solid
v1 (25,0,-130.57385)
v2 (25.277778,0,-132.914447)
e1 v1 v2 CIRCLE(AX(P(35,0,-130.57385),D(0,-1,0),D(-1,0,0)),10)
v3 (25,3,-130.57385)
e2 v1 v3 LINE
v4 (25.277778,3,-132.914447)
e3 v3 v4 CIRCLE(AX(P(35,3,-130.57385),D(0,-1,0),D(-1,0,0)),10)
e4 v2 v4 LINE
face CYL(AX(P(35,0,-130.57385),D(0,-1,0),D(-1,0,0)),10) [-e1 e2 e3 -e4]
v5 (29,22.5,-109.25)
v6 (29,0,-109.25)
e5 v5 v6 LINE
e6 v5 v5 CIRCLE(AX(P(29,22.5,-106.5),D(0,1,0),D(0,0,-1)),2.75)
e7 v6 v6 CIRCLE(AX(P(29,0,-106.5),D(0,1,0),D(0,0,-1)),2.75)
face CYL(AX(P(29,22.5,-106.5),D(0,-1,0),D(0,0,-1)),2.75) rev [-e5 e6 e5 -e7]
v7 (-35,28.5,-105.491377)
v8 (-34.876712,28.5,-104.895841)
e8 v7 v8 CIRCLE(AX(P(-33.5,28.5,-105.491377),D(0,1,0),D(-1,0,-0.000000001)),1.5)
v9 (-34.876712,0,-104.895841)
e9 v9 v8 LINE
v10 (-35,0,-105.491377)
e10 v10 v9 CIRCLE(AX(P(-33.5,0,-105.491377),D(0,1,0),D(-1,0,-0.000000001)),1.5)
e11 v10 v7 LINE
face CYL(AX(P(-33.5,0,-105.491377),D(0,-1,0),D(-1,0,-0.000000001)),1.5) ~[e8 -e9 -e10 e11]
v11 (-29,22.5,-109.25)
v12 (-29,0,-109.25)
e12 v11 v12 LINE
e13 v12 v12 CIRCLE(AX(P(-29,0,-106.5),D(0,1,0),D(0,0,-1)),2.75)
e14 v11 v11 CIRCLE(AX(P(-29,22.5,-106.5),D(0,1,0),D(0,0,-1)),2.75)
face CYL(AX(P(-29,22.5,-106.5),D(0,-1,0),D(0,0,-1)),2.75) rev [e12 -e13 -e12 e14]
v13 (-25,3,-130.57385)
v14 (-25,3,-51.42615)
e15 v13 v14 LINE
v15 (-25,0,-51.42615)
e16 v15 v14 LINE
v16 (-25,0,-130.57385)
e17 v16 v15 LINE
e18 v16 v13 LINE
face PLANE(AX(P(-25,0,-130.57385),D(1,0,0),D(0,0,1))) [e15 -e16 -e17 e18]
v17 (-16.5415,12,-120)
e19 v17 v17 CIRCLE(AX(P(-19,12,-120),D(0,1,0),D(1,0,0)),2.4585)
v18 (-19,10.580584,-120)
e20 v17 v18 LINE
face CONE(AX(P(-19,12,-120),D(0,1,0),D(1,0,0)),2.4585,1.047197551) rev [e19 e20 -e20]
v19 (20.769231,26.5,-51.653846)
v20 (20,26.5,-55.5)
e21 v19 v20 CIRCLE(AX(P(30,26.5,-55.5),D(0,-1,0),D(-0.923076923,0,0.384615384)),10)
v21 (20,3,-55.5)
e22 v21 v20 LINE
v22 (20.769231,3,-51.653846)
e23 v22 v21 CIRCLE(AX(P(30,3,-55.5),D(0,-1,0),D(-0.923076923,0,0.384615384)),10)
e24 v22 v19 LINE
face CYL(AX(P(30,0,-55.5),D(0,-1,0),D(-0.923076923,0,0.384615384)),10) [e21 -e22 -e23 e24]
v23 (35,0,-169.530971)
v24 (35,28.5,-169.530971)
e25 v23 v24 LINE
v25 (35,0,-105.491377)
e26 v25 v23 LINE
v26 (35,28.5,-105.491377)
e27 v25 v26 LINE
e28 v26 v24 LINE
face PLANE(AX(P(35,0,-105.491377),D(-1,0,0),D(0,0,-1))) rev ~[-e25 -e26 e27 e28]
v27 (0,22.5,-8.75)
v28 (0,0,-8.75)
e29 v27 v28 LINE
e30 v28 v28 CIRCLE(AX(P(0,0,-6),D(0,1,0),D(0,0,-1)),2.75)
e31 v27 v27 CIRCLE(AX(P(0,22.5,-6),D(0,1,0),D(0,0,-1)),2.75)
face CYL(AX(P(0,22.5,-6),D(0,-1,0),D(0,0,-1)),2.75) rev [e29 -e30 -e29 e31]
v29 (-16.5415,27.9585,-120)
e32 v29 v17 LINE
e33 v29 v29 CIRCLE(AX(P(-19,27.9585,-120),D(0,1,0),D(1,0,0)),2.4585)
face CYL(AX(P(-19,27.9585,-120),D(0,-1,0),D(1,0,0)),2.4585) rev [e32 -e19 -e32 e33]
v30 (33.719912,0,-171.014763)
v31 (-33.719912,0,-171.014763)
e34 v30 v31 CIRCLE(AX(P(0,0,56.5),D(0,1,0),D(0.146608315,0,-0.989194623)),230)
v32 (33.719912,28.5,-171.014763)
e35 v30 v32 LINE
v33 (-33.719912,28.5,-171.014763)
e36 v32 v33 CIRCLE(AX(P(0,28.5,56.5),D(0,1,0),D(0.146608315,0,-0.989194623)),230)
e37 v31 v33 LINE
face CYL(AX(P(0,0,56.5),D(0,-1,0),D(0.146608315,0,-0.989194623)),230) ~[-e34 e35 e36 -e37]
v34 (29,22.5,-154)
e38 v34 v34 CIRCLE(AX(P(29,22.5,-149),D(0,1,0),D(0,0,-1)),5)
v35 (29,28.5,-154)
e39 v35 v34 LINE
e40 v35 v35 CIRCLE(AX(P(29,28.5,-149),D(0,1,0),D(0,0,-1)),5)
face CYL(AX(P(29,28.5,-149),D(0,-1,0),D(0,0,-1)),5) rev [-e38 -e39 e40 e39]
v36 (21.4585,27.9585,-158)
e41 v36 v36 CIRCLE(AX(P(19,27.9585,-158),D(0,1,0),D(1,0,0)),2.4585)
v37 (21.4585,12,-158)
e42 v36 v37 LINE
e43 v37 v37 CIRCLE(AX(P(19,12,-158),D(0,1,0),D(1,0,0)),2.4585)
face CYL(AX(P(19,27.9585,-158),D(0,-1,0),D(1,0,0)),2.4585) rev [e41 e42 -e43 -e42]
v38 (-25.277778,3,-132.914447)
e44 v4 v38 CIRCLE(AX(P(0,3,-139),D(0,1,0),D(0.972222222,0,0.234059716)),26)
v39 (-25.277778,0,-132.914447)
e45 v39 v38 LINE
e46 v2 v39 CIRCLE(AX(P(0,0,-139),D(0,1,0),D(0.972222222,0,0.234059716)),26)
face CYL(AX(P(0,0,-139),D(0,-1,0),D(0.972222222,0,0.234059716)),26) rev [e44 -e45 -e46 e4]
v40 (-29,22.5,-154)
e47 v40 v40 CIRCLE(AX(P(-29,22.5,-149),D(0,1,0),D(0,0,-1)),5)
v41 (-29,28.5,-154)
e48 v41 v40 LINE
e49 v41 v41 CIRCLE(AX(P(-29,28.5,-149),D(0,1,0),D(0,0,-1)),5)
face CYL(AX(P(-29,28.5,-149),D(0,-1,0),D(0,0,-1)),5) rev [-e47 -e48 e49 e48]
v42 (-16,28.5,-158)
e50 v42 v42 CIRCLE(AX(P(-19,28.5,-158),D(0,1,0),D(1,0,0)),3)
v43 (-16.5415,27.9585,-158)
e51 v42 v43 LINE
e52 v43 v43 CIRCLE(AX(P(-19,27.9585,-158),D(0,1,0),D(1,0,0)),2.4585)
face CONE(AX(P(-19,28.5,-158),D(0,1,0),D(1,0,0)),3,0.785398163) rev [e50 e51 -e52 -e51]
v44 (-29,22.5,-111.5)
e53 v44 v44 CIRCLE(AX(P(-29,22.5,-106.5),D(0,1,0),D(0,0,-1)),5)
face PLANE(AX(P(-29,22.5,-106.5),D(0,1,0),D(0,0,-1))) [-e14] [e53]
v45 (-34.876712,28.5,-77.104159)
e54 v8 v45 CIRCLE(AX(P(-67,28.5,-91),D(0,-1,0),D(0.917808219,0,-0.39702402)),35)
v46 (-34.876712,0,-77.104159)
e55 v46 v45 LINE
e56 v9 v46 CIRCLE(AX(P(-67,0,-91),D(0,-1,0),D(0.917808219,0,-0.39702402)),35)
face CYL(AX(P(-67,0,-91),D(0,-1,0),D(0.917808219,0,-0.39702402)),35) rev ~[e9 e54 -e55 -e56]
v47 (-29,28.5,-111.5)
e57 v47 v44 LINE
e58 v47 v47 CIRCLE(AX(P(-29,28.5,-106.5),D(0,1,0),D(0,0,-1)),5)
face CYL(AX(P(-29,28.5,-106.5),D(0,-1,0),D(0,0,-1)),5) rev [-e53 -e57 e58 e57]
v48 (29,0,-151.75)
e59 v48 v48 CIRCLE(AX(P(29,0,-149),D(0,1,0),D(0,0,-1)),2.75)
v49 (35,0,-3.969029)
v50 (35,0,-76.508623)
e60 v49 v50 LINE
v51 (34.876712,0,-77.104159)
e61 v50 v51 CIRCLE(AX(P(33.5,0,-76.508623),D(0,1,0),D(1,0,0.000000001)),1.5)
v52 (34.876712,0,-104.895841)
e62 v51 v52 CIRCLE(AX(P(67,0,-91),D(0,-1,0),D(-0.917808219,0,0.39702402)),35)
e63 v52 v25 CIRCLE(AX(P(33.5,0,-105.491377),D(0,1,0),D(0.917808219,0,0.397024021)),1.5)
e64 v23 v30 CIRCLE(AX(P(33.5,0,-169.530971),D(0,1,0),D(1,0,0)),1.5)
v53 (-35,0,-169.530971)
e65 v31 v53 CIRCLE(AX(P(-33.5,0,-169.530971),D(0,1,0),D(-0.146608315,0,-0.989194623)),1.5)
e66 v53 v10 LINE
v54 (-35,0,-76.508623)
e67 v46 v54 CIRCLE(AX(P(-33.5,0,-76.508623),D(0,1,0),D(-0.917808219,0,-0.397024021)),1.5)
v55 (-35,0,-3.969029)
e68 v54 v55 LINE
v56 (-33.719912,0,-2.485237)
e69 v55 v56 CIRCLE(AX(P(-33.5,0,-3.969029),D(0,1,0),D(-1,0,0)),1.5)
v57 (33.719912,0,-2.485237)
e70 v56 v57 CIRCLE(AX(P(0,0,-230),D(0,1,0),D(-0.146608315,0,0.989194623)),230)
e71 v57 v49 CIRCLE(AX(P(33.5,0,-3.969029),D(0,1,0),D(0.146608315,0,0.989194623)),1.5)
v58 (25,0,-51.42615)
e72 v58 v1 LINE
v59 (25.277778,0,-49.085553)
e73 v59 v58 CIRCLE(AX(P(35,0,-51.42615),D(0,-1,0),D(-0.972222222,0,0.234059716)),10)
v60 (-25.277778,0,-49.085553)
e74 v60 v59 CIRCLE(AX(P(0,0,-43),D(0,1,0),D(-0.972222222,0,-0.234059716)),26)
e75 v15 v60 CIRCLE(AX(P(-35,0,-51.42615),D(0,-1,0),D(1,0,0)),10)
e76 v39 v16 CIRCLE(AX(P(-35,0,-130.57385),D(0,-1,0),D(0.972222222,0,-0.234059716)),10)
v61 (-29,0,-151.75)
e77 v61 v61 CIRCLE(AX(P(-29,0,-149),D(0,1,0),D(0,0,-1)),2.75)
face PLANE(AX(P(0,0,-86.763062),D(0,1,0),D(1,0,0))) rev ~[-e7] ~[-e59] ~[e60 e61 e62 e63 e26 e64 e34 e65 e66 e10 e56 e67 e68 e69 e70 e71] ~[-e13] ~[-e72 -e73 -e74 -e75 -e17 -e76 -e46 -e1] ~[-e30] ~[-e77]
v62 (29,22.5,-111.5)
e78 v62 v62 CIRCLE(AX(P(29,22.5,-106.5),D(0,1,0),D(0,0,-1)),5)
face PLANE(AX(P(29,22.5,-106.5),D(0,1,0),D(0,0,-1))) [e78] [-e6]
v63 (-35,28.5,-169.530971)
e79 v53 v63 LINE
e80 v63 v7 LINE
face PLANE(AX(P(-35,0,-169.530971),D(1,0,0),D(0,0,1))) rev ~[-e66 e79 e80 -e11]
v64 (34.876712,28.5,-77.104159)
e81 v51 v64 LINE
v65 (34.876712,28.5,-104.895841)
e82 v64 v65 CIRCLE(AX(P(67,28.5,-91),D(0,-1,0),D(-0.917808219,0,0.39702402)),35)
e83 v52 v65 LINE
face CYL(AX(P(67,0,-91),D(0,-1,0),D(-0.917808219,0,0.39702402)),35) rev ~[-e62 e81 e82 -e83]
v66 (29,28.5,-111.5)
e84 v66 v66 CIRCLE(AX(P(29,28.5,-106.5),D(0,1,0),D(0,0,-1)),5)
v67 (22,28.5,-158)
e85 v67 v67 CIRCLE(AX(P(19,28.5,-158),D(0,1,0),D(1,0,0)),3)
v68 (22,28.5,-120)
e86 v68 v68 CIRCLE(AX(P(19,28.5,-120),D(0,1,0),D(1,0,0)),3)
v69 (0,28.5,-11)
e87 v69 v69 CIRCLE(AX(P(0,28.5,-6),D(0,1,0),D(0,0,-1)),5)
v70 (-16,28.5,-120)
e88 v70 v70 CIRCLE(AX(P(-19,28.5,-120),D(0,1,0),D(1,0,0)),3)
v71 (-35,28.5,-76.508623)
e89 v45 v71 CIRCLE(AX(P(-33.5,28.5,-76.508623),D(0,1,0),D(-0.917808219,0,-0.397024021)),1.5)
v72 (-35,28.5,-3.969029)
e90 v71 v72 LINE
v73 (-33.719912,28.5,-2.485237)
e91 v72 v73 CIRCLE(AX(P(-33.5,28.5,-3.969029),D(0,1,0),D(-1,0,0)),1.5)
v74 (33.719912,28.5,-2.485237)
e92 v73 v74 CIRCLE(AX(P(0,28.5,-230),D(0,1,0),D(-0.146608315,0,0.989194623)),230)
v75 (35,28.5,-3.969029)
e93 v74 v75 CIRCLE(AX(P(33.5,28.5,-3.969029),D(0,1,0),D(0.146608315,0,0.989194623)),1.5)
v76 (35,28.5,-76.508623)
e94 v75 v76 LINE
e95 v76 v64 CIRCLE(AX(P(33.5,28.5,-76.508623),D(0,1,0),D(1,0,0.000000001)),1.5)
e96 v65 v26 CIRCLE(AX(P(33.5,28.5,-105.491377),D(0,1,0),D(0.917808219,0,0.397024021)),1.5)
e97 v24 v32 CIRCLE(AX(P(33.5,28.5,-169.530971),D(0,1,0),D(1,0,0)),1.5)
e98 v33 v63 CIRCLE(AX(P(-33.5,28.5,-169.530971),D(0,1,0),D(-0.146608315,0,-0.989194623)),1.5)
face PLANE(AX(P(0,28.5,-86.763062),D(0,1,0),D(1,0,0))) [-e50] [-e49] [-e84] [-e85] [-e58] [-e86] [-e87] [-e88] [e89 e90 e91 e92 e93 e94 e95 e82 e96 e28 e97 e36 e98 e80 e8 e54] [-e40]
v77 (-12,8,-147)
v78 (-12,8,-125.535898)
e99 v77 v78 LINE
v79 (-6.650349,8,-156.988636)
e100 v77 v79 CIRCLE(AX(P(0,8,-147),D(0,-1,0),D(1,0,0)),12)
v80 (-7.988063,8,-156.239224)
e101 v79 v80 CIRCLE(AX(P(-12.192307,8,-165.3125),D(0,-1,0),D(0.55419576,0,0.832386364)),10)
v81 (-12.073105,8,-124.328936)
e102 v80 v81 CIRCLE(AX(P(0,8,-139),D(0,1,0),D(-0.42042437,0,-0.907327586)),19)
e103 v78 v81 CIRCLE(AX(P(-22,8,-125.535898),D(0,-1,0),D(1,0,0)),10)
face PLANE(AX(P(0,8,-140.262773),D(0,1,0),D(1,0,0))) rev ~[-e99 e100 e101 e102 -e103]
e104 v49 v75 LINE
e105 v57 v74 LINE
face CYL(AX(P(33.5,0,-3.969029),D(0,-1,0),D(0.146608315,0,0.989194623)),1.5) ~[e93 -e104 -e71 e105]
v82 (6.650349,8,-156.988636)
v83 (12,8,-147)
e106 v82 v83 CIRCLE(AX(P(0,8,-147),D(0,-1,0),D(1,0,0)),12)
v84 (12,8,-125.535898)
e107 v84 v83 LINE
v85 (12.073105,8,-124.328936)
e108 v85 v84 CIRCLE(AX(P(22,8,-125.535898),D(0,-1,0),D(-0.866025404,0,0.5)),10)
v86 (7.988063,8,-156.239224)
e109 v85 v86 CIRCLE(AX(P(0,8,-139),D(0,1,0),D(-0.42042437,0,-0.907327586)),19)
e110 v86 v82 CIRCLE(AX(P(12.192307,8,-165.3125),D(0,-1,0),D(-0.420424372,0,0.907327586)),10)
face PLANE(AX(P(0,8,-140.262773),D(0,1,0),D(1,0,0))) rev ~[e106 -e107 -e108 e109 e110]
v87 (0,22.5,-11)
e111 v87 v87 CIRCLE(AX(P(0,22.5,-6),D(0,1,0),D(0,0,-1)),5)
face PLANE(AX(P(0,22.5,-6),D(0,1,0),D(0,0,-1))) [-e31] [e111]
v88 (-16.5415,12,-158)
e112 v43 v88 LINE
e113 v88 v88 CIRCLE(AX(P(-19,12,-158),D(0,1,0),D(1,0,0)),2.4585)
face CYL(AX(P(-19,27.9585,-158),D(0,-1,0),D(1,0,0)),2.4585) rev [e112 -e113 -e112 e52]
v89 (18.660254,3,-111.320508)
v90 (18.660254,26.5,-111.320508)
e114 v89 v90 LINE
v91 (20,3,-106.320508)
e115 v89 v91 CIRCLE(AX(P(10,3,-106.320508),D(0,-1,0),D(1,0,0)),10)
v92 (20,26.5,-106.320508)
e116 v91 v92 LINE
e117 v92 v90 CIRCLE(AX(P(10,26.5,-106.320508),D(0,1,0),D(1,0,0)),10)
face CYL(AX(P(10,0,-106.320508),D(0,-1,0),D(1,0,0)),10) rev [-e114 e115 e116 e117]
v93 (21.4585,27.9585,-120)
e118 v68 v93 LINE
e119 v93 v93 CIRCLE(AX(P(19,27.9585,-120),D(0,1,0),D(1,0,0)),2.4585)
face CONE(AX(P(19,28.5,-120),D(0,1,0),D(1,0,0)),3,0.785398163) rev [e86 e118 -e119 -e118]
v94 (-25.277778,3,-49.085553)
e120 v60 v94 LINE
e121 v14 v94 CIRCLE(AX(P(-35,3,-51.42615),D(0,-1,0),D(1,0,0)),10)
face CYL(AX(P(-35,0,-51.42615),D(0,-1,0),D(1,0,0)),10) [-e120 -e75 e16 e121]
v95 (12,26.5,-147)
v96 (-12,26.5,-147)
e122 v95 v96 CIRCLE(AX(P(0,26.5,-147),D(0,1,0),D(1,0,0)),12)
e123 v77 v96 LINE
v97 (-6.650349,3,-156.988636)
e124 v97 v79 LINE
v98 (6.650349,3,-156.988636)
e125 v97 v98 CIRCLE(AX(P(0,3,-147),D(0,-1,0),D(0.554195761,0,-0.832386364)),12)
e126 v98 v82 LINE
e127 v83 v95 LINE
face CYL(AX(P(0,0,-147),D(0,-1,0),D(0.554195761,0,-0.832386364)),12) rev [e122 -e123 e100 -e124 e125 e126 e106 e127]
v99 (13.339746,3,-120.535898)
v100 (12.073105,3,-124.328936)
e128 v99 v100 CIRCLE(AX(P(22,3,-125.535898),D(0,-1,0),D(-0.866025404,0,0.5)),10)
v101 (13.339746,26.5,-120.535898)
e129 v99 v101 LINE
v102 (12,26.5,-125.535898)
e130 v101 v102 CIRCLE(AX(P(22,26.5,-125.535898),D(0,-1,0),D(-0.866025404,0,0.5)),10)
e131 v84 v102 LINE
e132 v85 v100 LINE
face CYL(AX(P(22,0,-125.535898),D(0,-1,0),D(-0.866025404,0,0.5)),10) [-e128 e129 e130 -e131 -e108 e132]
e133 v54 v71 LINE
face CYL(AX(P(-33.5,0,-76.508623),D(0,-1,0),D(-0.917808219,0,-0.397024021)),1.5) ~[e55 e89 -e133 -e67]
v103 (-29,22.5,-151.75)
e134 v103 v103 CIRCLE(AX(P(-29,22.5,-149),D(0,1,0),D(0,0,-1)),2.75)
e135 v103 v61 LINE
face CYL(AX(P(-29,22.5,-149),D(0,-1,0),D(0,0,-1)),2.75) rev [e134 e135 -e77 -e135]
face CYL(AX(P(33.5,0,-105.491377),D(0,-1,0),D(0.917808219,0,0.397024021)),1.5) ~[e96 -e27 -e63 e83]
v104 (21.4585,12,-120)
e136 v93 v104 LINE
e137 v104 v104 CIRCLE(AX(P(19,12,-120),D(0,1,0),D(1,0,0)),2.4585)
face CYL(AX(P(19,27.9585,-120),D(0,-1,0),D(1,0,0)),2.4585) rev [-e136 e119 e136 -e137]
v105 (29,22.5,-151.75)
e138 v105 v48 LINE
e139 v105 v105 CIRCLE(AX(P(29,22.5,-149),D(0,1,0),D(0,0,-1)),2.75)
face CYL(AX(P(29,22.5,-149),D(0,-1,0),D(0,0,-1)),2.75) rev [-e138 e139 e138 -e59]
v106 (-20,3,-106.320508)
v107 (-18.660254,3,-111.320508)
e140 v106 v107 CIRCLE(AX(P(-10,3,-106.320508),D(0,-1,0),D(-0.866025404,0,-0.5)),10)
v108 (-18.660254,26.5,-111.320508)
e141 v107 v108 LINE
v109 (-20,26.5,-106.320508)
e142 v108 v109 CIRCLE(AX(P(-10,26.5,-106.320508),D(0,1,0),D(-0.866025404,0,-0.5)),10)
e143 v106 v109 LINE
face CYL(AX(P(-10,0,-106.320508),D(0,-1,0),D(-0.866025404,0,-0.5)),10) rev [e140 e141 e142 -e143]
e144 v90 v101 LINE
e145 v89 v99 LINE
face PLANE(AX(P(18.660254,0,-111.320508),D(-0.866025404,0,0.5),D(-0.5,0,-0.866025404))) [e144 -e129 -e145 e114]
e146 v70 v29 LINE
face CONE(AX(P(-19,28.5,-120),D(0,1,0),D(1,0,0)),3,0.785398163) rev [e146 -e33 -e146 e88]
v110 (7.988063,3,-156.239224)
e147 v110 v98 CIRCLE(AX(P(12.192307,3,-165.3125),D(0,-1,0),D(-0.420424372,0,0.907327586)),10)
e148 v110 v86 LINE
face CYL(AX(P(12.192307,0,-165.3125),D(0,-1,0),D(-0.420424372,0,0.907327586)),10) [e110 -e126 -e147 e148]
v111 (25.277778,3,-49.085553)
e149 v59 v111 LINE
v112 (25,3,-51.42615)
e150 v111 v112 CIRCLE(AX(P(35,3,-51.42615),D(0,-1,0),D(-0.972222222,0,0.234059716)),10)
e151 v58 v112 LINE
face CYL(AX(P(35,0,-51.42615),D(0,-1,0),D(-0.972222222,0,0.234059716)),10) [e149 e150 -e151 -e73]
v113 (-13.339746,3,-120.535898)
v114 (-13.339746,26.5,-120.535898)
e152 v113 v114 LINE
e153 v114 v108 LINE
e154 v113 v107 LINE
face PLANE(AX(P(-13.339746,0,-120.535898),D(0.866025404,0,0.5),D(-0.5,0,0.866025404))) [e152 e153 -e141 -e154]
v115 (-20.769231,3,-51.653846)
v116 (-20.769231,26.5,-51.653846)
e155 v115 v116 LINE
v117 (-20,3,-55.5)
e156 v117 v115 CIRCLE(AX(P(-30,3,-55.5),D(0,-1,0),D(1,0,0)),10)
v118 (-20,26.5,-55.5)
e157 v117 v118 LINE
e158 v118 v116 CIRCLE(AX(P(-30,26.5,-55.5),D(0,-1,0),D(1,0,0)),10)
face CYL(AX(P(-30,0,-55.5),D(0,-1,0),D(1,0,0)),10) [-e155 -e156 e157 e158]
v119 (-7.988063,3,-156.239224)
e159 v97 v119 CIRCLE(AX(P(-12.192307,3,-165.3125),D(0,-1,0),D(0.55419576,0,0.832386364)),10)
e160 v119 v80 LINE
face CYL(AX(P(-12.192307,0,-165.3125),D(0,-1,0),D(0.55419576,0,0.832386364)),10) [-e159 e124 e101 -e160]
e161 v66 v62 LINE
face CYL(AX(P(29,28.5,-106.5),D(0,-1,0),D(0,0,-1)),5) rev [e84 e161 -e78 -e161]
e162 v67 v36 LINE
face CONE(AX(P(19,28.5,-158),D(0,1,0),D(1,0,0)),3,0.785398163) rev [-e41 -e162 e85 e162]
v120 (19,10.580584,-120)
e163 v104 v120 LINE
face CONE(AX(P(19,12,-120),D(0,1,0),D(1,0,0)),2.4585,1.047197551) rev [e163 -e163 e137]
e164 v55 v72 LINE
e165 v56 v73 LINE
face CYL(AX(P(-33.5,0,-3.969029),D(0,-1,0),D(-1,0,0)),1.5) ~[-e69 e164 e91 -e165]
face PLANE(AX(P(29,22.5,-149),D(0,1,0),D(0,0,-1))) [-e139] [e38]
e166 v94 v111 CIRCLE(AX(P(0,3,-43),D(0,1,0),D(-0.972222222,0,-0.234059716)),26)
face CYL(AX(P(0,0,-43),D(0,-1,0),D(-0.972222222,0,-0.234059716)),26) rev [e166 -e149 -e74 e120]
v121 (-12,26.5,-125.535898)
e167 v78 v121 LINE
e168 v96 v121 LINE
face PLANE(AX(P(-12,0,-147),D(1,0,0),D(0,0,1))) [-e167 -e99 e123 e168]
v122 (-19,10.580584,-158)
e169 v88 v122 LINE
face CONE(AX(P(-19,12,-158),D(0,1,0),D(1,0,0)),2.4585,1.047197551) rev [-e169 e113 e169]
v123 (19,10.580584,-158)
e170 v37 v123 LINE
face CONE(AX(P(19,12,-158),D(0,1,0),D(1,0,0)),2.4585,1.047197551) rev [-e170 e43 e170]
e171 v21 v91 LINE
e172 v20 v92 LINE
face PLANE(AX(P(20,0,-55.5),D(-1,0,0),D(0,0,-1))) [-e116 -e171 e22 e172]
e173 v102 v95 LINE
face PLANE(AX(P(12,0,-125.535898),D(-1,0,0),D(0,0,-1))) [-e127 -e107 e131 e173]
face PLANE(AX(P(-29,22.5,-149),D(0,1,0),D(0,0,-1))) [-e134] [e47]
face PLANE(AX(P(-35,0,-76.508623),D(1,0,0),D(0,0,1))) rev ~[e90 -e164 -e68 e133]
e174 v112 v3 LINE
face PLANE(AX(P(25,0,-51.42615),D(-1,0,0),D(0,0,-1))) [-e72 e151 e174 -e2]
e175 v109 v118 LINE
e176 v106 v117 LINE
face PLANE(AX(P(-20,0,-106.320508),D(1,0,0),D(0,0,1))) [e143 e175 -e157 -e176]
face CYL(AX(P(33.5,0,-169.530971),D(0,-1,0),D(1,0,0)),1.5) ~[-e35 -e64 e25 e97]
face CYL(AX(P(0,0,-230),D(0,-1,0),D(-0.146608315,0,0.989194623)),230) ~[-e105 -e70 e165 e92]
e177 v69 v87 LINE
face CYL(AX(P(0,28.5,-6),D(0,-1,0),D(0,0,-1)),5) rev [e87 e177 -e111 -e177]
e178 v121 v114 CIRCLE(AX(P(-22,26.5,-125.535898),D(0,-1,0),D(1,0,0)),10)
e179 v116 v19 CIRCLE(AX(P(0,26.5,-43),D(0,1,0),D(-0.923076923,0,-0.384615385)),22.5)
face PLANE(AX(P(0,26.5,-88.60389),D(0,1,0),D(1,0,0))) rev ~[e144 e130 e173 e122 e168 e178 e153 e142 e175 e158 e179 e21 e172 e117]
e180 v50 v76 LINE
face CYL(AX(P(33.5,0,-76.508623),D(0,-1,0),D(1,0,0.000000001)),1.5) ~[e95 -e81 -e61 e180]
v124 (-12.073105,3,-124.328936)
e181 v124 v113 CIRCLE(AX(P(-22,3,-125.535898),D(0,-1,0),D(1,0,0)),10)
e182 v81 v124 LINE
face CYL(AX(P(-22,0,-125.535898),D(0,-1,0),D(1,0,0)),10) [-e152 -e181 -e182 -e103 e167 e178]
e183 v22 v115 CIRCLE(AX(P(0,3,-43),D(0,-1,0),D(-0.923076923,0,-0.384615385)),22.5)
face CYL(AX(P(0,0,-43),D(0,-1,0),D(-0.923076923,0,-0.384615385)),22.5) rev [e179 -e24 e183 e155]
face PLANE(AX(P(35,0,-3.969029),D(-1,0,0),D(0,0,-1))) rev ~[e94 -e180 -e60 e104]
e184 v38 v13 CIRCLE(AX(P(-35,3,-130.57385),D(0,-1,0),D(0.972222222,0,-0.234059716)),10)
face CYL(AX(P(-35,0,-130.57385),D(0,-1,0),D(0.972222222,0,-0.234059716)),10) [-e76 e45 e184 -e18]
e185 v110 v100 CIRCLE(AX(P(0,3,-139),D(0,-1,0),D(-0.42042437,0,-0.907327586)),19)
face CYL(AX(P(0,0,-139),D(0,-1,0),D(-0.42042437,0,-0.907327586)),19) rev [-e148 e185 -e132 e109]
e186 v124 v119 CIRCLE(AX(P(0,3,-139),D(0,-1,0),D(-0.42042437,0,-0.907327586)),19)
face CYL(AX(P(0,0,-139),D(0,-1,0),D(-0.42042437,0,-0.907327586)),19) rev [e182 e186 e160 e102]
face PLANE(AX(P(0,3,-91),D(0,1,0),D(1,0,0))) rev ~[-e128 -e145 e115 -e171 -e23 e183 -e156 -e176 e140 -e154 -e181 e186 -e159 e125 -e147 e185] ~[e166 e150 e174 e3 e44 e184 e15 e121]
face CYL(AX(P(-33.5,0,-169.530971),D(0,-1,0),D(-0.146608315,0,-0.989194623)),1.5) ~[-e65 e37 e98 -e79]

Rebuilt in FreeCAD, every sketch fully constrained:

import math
import FreeCAD as App
import Part
import Sketcher
from FreeCAD import Vector
Q = App.Units.Quantity

doc = App.newDocument("Part")
body = doc.addObject("PartDesign::Body", "Body")

sketch1 = body.newObject("Sketcher::SketchObject", "Sketch")
sketch1.AttachmentSupport = (doc.getObject("XZ_Plane"), [""])
sketch1.MapMode = "FlatFace"
sketch1.addGeometry([
    Part.LineSegment(Vector(-35, -76.5, 0), Vector(-35, -4, 0)),
    Part.ArcOfCircle(Part.Circle(Vector(-33.5, -4, 0), Vector(0, 0, 1), 1.5), math.radians(98), math.radians(180)),
    Part.ArcOfCircle(Part.Circle(Vector(0, -230, 0), Vector(0, 0, 1), 230), math.radians(81.57), math.radians(98.43)),
    Part.ArcOfCircle(Part.Circle(Vector(33.5, -4, 0), Vector(0, 0, 1), 1.5), math.radians(0), math.radians(82)),
    Part.LineSegment(Vector(35, -4, 0), Vector(35, -76.5, 0)),
    Part.ArcOfCircle(Part.Circle(Vector(33.5, -76.5, 0), Vector(0, 0, 1), 1.5), math.radians(-23), math.radians(0)),
    Part.ArcOfCircle(Part.Circle(Vector(67, -91, 0), Vector(0, 0, 1), 35), math.radians(157), math.radians(203)),
    Part.ArcOfCircle(Part.Circle(Vector(33.5, -105.5, 0), Vector(0, 0, 1), 1.5), math.radians(0), math.radians(23)),
    Part.LineSegment(Vector(35, -105.5, 0), Vector(35, -169.5, 0)),
    Part.ArcOfCircle(Part.Circle(Vector(33.5, -169.5, 0), Vector(0, 0, 1), 1.5), math.radians(-82), math.radians(0)),
    Part.ArcOfCircle(Part.Circle(Vector(0, 56.5, 0), Vector(0, 0, 1), 230), math.radians(-98.43), math.radians(-81.57)),
    Part.ArcOfCircle(Part.Circle(Vector(-33.5, -169.5, 0), Vector(0, 0, 1), 1.5), math.radians(180), math.radians(262)),
    Part.LineSegment(Vector(-35, -169.5, 0), Vector(-35, -105.5, 0)),
    Part.ArcOfCircle(Part.Circle(Vector(-33.5, -105.5, 0), Vector(0, 0, 1), 1.5), math.radians(157), math.radians(180)),
    Part.ArcOfCircle(Part.Circle(Vector(-67, -91, 0), Vector(0, 0, 1), 35), math.radians(-23), math.radians(23)),
    Part.ArcOfCircle(Part.Circle(Vector(-33.5, -76.5, 0), Vector(0, 0, 1), 1.5), math.radians(180), math.radians(203)),
], False)
sketch1.addConstraint([
    Sketcher.Constraint("Tangent", 0, 2, 1, 2),
    Sketcher.Constraint("Tangent", 1, 1, 2, 2),
    Sketcher.Constraint("Tangent", 2, 1, 3, 2),
    Sketcher.Constraint("Tangent", 3, 1, 4, 1),
    Sketcher.Constraint("Tangent", 4, 2, 5, 2),
    Sketcher.Constraint("Tangent", 5, 1, 6, 1),
    Sketcher.Constraint("Tangent", 6, 2, 7, 2),
    Sketcher.Constraint("Tangent", 7, 1, 8, 1),
    Sketcher.Constraint("Tangent", 8, 2, 9, 2),
    Sketcher.Constraint("Tangent", 9, 1, 10, 2),
    Sketcher.Constraint("Tangent", 10, 1, 11, 2),
    Sketcher.Constraint("Tangent", 11, 1, 12, 1),
    Sketcher.Constraint("Tangent", 12, 2, 13, 2),
    Sketcher.Constraint("Tangent", 13, 1, 14, 1),
    Sketcher.Constraint("Tangent", 14, 2, 15, 2),
    Sketcher.Constraint("Tangent", 15, 1, 0, 1),
    Sketcher.Constraint("Vertical", 0),
    Sketcher.Constraint("Vertical", 4),
    Sketcher.Constraint("Vertical", 8),
    Sketcher.Constraint("Vertical", 12),
    Sketcher.Constraint("Equal", 1, 3),
    Sketcher.Constraint("Equal", 3, 5),
    Sketcher.Constraint("Equal", 5, 7),
    Sketcher.Constraint("Equal", 7, 9),
    Sketcher.Constraint("Equal", 2, 10),
    Sketcher.Constraint("Equal", 9, 11),
    Sketcher.Constraint("Equal", 11, 13),
    Sketcher.Constraint("Equal", 6, 14),
    Sketcher.Constraint("Equal", 13, 15),
    Sketcher.Constraint("Symmetric", 1, 3, 3, 3, -2),
    Sketcher.Constraint("Symmetric", 9, 3, 11, 3, -2),
    Sketcher.Constraint("Symmetric", 6, 3, 14, 3, -2),
    Sketcher.Constraint("Vertical", 5, 3, 7, 3),
    Sketcher.Constraint("Radius", 2, Q("230 mm")),
    Sketcher.Constraint("Radius", 6, Q("35 mm")),
    Sketcher.Constraint("Radius", 1, Q("1.5 mm")),
    Sketcher.Constraint("DistanceY", 2, 3, -1, 1, Q("230 mm")),
    Sketcher.Constraint("DistanceX", -1, 1, 6, 3, Q("67 mm")),
    Sketcher.Constraint("DistanceY", 6, 3, -1, 1, Q("91 mm")),
    Sketcher.Constraint("DistanceX", 0, 2, -1, 1, Q("35 mm")),
    Sketcher.Constraint("DistanceY", -1, 1, 10, 3, Q("56.5 mm")),
])
pad1 = body.newObject("PartDesign::Pad", "Pad")
pad1.Profile = sketch1
pad1.Length = 28.5
pad1.Reversed = True

sketch2 = body.newObject("Sketcher::SketchObject", "Sketch001")
sketch2.AttachmentSupport = (doc.getObject("XZ_Plane"), [""])
sketch2.MapMode = "FlatFace"
sketch2.addGeometry([
    Part.LineSegment(Vector(20, -55.5, 0), Vector(20, -106.3, 0)),
    Part.ArcOfCircle(Part.Circle(Vector(10, -106.3, 0), Vector(0, 0, 1), 10), math.radians(-30), math.radians(0)),
    Part.LineSegment(Vector(18.7, -111.3, 0), Vector(13.3, -120.5, 0)),
    Part.ArcOfCircle(Part.Circle(Vector(22, -125.5, 0), Vector(0, 0, 1), 10), math.radians(150), math.radians(180)),
    Part.LineSegment(Vector(12, -125.5, 0), Vector(12, -147, 0)),
    Part.ArcOfCircle(Part.Circle(Vector(0, -147, 0), Vector(0, 0, 1), 12), math.radians(180), math.radians(360)),
    Part.LineSegment(Vector(-12, -147, 0), Vector(-12, -125.5, 0)),
    Part.ArcOfCircle(Part.Circle(Vector(-22, -125.5, 0), Vector(0, 0, 1), 10), math.radians(0), math.radians(30)),
    Part.LineSegment(Vector(-13.3, -120.5, 0), Vector(-18.7, -111.3, 0)),
    Part.ArcOfCircle(Part.Circle(Vector(-10, -106.3, 0), Vector(0, 0, 1), 10), math.radians(180), math.radians(210)),
    Part.LineSegment(Vector(-20, -106.3, 0), Vector(-20, -55.5, 0)),
    Part.ArcOfCircle(Part.Circle(Vector(-30, -55.5, 0), Vector(0, 0, 1), 10), math.radians(0), math.radians(23)),
    Part.ArcOfCircle(Part.Circle(Vector(0, -43, 0), Vector(0, 0, 1), 22.5), math.radians(-23), math.radians(203)),
    Part.ArcOfCircle(Part.Circle(Vector(30, -55.5, 0), Vector(0, 0, 1), 10), math.radians(157), math.radians(180)),
], False)
sketch2.addConstraint([
    Sketcher.Constraint("Tangent", 0, 2, 1, 2),
    Sketcher.Constraint("Tangent", 1, 1, 2, 1),
    Sketcher.Constraint("Tangent", 2, 2, 3, 1),
    Sketcher.Constraint("Tangent", 3, 2, 4, 1),
    Sketcher.Constraint("Tangent", 4, 2, 5, 2),
    Sketcher.Constraint("Tangent", 5, 1, 6, 1),
    Sketcher.Constraint("Tangent", 6, 2, 7, 1),
    Sketcher.Constraint("Tangent", 7, 2, 8, 1),
    Sketcher.Constraint("Tangent", 8, 2, 9, 2),
    Sketcher.Constraint("Tangent", 9, 1, 10, 1),
    Sketcher.Constraint("Tangent", 10, 2, 11, 1),
    Sketcher.Constraint("Tangent", 11, 2, 12, 2),
    Sketcher.Constraint("Tangent", 12, 1, 13, 1),
    Sketcher.Constraint("Tangent", 13, 2, 0, 1),
    Sketcher.Constraint("Vertical", 0),
    Sketcher.Constraint("Vertical", 4),
    Sketcher.Constraint("Vertical", 6),
    Sketcher.Constraint("Vertical", 10),
    Sketcher.Constraint("Equal", 1, 3),
    Sketcher.Constraint("Equal", 3, 7),
    Sketcher.Constraint("Equal", 7, 9),
    Sketcher.Constraint("Equal", 9, 11),
    Sketcher.Constraint("Equal", 11, 13),
    Sketcher.Constraint("Symmetric", 3, 3, 7, 3, -2),
    Sketcher.Constraint("Symmetric", 1, 3, 9, 3, -2),
    Sketcher.Constraint("PointOnObject", 12, 3, -2),
    Sketcher.Constraint("Radius", 1, Q("10 mm")),
    Sketcher.Constraint("Radius", 5, Q("12 mm")),
    Sketcher.Constraint("Radius", 12, Q("22.5 mm")),
    Sketcher.Constraint("Angle", 2, Q("-120 deg")),
    Sketcher.Constraint("DistanceX", -1, 1, 1, 3, Q("10 mm")),
    Sketcher.Constraint("DistanceY", 5, 3, -1, 1, Q("147 mm")),
    Sketcher.Constraint("DistanceY", 12, 3, -1, 1, Q("43 mm")),
    Sketcher.Constraint("DistanceY", 4, 2, 4, 1, Q("21.464102 mm")),
])
pocket1 = body.newObject("PartDesign::Pocket", "Pocket")
pocket1.Profile = sketch2
pocket1.Length = 26.5

sketch3 = body.newObject("Sketcher::SketchObject", "Sketch002")
sketch3.AttachmentSupport = (doc.getObject("XZ_Plane"), [""])
sketch3.MapMode = "FlatFace"
sketch3.addGeometry([
    Part.ArcOfCircle(Part.Circle(Vector(0, -139, 0), Vector(0, 0, 1), 19), math.radians(-65), math.radians(245)),
    Part.ArcOfCircle(Part.Circle(Vector(12.2, -165.3, 0), Vector(0, 0, 1), 10), math.radians(114.86), math.radians(123.66)),
    Part.ArcOfCircle(Part.Circle(Vector(0, -147, 0), Vector(0, 0, 1), 12), math.radians(-124), math.radians(-56)),
    Part.ArcOfCircle(Part.Circle(Vector(-12.2, -165.3, 0), Vector(0, 0, 1), 10), math.radians(56.34), math.radians(65.14)),
], False)
sketch3.addConstraint([
    Sketcher.Constraint("Tangent", 0, 1, 1, 1),
    Sketcher.Constraint("Tangent", 1, 2, 2, 2),
    Sketcher.Constraint("Tangent", 2, 1, 3, 1),
    Sketcher.Constraint("Tangent", 3, 2, 0, 2),
    Sketcher.Constraint("Equal", 1, 3),
    Sketcher.Constraint("Symmetric", 1, 3, 3, 3, -2),
    Sketcher.Constraint("Radius", 0, Q("19 mm")),
    Sketcher.Constraint("Radius", 1, Q("10 mm")),
    Sketcher.Constraint("Radius", 2, Q("12 mm")),
    Sketcher.Constraint("DistanceY", 0, 3, -1, 1, Q("139 mm")),
    Sketcher.Constraint("DistanceY", 2, 3, -1, 1, Q("147 mm")),
])
pocket2 = body.newObject("PartDesign::Pocket", "Pocket001")
pocket2.Profile = sketch3
pocket2.Length = 8

sketch4 = body.newObject("Sketcher::SketchObject", "Sketch003")
sketch4.AttachmentSupport = (doc.getObject("XZ_Plane"), [""])
sketch4.MapMode = "FlatFace"
sketch4.addGeometry([
    Part.LineSegment(Vector(25, -51.4, 0), Vector(25, -130.6, 0)),
    Part.ArcOfCircle(Part.Circle(Vector(35, -130.6, 0), Vector(0, 0, 1), 10), math.radians(180), math.radians(193.54)),
    Part.ArcOfCircle(Part.Circle(Vector(0, -139, 0), Vector(0, 0, 1), 26), math.radians(166), math.radians(374)),
    Part.ArcOfCircle(Part.Circle(Vector(-35, -130.6, 0), Vector(0, 0, 1), 10), math.radians(-13.54), math.radians(0)),
    Part.LineSegment(Vector(-25, -130.6, 0), Vector(-25, -51.4, 0)),
    Part.ArcOfCircle(Part.Circle(Vector(-35, -51.4, 0), Vector(0, 0, 1), 10), math.radians(0), math.radians(13.54)),
    Part.ArcOfCircle(Part.Circle(Vector(0, -43, 0), Vector(0, 0, 1), 26), math.radians(-14), math.radians(194)),
    Part.ArcOfCircle(Part.Circle(Vector(35, -51.4, 0), Vector(0, 0, 1), 10), math.radians(166.46), math.radians(180)),
], False)
sketch4.addConstraint([
    Sketcher.Constraint("Tangent", 0, 2, 1, 1),
    Sketcher.Constraint("Tangent", 1, 2, 2, 2),
    Sketcher.Constraint("Tangent", 2, 1, 3, 1),
    Sketcher.Constraint("Tangent", 3, 2, 4, 1),
    Sketcher.Constraint("Tangent", 4, 2, 5, 1),
    Sketcher.Constraint("Tangent", 5, 2, 6, 2),
    Sketcher.Constraint("Tangent", 6, 1, 7, 1),
    Sketcher.Constraint("Tangent", 7, 2, 0, 1),
    Sketcher.Constraint("Vertical", 0),
    Sketcher.Constraint("Vertical", 4),
    Sketcher.Constraint("Equal", 1, 3),
    Sketcher.Constraint("Equal", 3, 5),
    Sketcher.Constraint("Equal", 2, 6),
    Sketcher.Constraint("Equal", 5, 7),
    Sketcher.Constraint("Symmetric", 1, 3, 3, 3, -2),
    Sketcher.Constraint("PointOnObject", 6, 3, -2),
    Sketcher.Constraint("Radius", 1, Q("10 mm")),
    Sketcher.Constraint("Radius", 2, Q("26 mm")),
    Sketcher.Constraint("DistanceX", -1, 1, 1, 3, Q("35 mm")),
    Sketcher.Constraint("DistanceY", 2, 3, -1, 1, Q("139 mm")),
    Sketcher.Constraint("DistanceY", 6, 3, -1, 1, Q("43 mm")),
])
pocket3 = body.newObject("PartDesign::Pocket", "Pocket002")
pocket3.Profile = sketch4
pocket3.Length = 3

sketch5 = body.newObject("Sketcher::SketchObject", "Sketch004")
sketch5.AttachmentSupport = (doc.getObject("YZ_Plane"), [""])
sketch5.MapMode = "FlatFace"
sketch5.addGeometry([
    Part.LineSegment(Vector(28.5, -11, 0), Vector(28.5, -6, 0)),
    Part.LineSegment(Vector(28.5, -6, 0), Vector(0, -6, 0)),
    Part.LineSegment(Vector(0, -6, 0), Vector(0, -8.8, 0)),
    Part.LineSegment(Vector(0, -8.8, 0), Vector(22.5, -8.8, 0)),
    Part.LineSegment(Vector(22.5, -8.8, 0), Vector(22.5, -11, 0)),
    Part.LineSegment(Vector(22.5, -11, 0), Vector(28.5, -11, 0)),
], False)
sketch5.addGeometry(Part.LineSegment(Vector(0, -6, 0), Vector(28.5, -6, 0)), True)
sketch5.addConstraint([
    Sketcher.Constraint("Coincident", 0, 2, 1, 1),
    Sketcher.Constraint("Coincident", 1, 2, 2, 1),
    Sketcher.Constraint("Coincident", 2, 2, 3, 1),
    Sketcher.Constraint("Coincident", 3, 2, 4, 1),
    Sketcher.Constraint("Coincident", 4, 2, 5, 1),
    Sketcher.Constraint("Coincident", 5, 2, 0, 1),
    Sketcher.Constraint("Vertical", 0),
    Sketcher.Constraint("Horizontal", 1),
    Sketcher.Constraint("Vertical", 2),
    Sketcher.Constraint("Horizontal", 3),
    Sketcher.Constraint("Vertical", 4),
    Sketcher.Constraint("Horizontal", 5),
    Sketcher.Constraint("Horizontal", 6),
    Sketcher.Constraint("Coincident", 6, 1, 1, 2),
    Sketcher.Constraint("PointOnObject", 1, 2, -2),
    Sketcher.Constraint("Vertical", 5, 2, 6, 2),
    Sketcher.Constraint("DistanceX", 5, 1, 5, 2, Q("6 mm")),
    Sketcher.Constraint("DistanceY", 0, 1, 0, 2, Q("5 mm")),
    Sketcher.Constraint("DistanceX", 1, 2, 1, 1, Q("28.5 mm")),
    Sketcher.Constraint("DistanceY", 0, 2, -1, 1, Q("6 mm")),
    Sketcher.Constraint("DistanceY", 2, 2, 2, 1, Q("2.75 mm")),
])
groove = body.newObject("PartDesign::Groove", "Groove")
groove.Profile = sketch5
groove.ReferenceAxis = (sketch5, ["Axis0"])
groove.Angle = 360

sketch6 = body.newObject("Sketcher::SketchObject", "Sketch005")
sketch6.AttachmentSupport = (doc.getObject("YZ_Plane"), [""])
sketch6.MapMode = "FlatFace"
sketch6.AttachmentOffset = App.Placement(Vector(0, 0, 29), App.Rotation())
sketch6.addGeometry([
    Part.LineSegment(Vector(28.5, -111.5, 0), Vector(28.5, -106.5, 0)),
    Part.LineSegment(Vector(28.5, -106.5, 0), Vector(0, -106.5, 0)),
    Part.LineSegment(Vector(0, -106.5, 0), Vector(0, -109.2, 0)),
    Part.LineSegment(Vector(0, -109.2, 0), Vector(22.5, -109.2, 0)),
    Part.LineSegment(Vector(22.5, -109.2, 0), Vector(22.5, -111.5, 0)),
    Part.LineSegment(Vector(22.5, -111.5, 0), Vector(28.5, -111.5, 0)),
], False)
sketch6.addGeometry(Part.LineSegment(Vector(0, -106.5, 0), Vector(28.5, -106.5, 0)), True)
sketch6.addConstraint([
    Sketcher.Constraint("Coincident", 0, 2, 1, 1),
    Sketcher.Constraint("Coincident", 1, 2, 2, 1),
    Sketcher.Constraint("Coincident", 2, 2, 3, 1),
    Sketcher.Constraint("Coincident", 3, 2, 4, 1),
    Sketcher.Constraint("Coincident", 4, 2, 5, 1),
    Sketcher.Constraint("Coincident", 5, 2, 0, 1),
    Sketcher.Constraint("Vertical", 0),
    Sketcher.Constraint("Horizontal", 1),
    Sketcher.Constraint("Vertical", 2),
    Sketcher.Constraint("Horizontal", 3),
    Sketcher.Constraint("Vertical", 4),
    Sketcher.Constraint("Horizontal", 5),
    Sketcher.Constraint("Horizontal", 6),
    Sketcher.Constraint("Coincident", 6, 1, 1, 2),
    Sketcher.Constraint("PointOnObject", 1, 2, -2),
    Sketcher.Constraint("Vertical", 5, 2, 6, 2),
    Sketcher.Constraint("DistanceX", 5, 1, 5, 2, Q("6 mm")),
    Sketcher.Constraint("DistanceY", 0, 1, 0, 2, Q("5 mm")),
    Sketcher.Constraint("DistanceX", 1, 2, 1, 1, Q("28.5 mm")),
    Sketcher.Constraint("DistanceY", 2, 2, 2, 1, Q("2.75 mm")),
    Sketcher.Constraint("DistanceY", 0, 2, -1, 1, Q("106.5 mm")),
])
groove2 = body.newObject("PartDesign::Groove", "Groove001")
groove2.Profile = sketch6
groove2.ReferenceAxis = (sketch6, ["Axis0"])
groove2.Angle = 360

sketch7 = body.newObject("Sketcher::SketchObject", "Sketch006")
sketch7.AttachmentSupport = (doc.getObject("YZ_Plane"), [""])
sketch7.MapMode = "FlatFace"
sketch7.AttachmentOffset = App.Placement(Vector(0, 0, 29), App.Rotation())
sketch7.addGeometry([
    Part.LineSegment(Vector(28.5, -154, 0), Vector(28.5, -149, 0)),
    Part.LineSegment(Vector(28.5, -149, 0), Vector(0, -149, 0)),
    Part.LineSegment(Vector(0, -149, 0), Vector(0, -151.8, 0)),
    Part.LineSegment(Vector(0, -151.8, 0), Vector(22.5, -151.8, 0)),
    Part.LineSegment(Vector(22.5, -151.8, 0), Vector(22.5, -154, 0)),
    Part.LineSegment(Vector(22.5, -154, 0), Vector(28.5, -154, 0)),
], False)
sketch7.addGeometry(Part.LineSegment(Vector(0, -149, 0), Vector(28.5, -149, 0)), True)
sketch7.addConstraint([
    Sketcher.Constraint("Coincident", 0, 2, 1, 1),
    Sketcher.Constraint("Coincident", 1, 2, 2, 1),
    Sketcher.Constraint("Coincident", 2, 2, 3, 1),
    Sketcher.Constraint("Coincident", 3, 2, 4, 1),
    Sketcher.Constraint("Coincident", 4, 2, 5, 1),
    Sketcher.Constraint("Coincident", 5, 2, 0, 1),
    Sketcher.Constraint("Vertical", 0),
    Sketcher.Constraint("Horizontal", 1),
    Sketcher.Constraint("Vertical", 2),
    Sketcher.Constraint("Horizontal", 3),
    Sketcher.Constraint("Vertical", 4),
    Sketcher.Constraint("Horizontal", 5),
    Sketcher.Constraint("Horizontal", 6),
    Sketcher.Constraint("Coincident", 6, 1, 1, 2),
    Sketcher.Constraint("PointOnObject", 1, 2, -2),
    Sketcher.Constraint("Vertical", 5, 2, 6, 2),
    Sketcher.Constraint("DistanceX", 5, 1, 5, 2, Q("6 mm")),
    Sketcher.Constraint("DistanceY", 0, 1, 0, 2, Q("5 mm")),
    Sketcher.Constraint("DistanceX", 1, 2, 1, 1, Q("28.5 mm")),
    Sketcher.Constraint("DistanceY", 0, 2, -1, 1, Q("149 mm")),
    Sketcher.Constraint("DistanceY", 2, 2, 2, 1, Q("2.75 mm")),
])
groove3 = body.newObject("PartDesign::Groove", "Groove002")
groove3.Profile = sketch7
groove3.ReferenceAxis = (sketch7, ["Axis0"])
groove3.Angle = 360

sketch8 = body.newObject("Sketcher::SketchObject", "Sketch007")
sketch8.AttachmentSupport = (doc.getObject("YZ_Plane"), [""])
sketch8.MapMode = "FlatFace"
sketch8.AttachmentOffset = App.Placement(Vector(0, 0, -29), App.Rotation())
sketch8.addGeometry([
    Part.LineSegment(Vector(28.5, -111.5, 0), Vector(28.5, -106.5, 0)),
    Part.LineSegment(Vector(28.5, -106.5, 0), Vector(0, -106.5, 0)),
    Part.LineSegment(Vector(0, -106.5, 0), Vector(0, -109.2, 0)),
    Part.LineSegment(Vector(0, -109.2, 0), Vector(22.5, -109.2, 0)),
    Part.LineSegment(Vector(22.5, -109.2, 0), Vector(22.5, -111.5, 0)),
    Part.LineSegment(Vector(22.5, -111.5, 0), Vector(28.5, -111.5, 0)),
], False)
sketch8.addGeometry(Part.LineSegment(Vector(0, -106.5, 0), Vector(28.5, -106.5, 0)), True)
sketch8.addConstraint([
    Sketcher.Constraint("Coincident", 0, 2, 1, 1),
    Sketcher.Constraint("Coincident", 1, 2, 2, 1),
    Sketcher.Constraint("Coincident", 2, 2, 3, 1),
    Sketcher.Constraint("Coincident", 3, 2, 4, 1),
    Sketcher.Constraint("Coincident", 4, 2, 5, 1),
    Sketcher.Constraint("Coincident", 5, 2, 0, 1),
    Sketcher.Constraint("Vertical", 0),
    Sketcher.Constraint("Horizontal", 1),
    Sketcher.Constraint("Vertical", 2),
    Sketcher.Constraint("Horizontal", 3),
    Sketcher.Constraint("Vertical", 4),
    Sketcher.Constraint("Horizontal", 5),
    Sketcher.Constraint("Horizontal", 6),
    Sketcher.Constraint("Coincident", 6, 1, 1, 2),
    Sketcher.Constraint("PointOnObject", 1, 2, -2),
    Sketcher.Constraint("Vertical", 5, 2, 6, 2),
    Sketcher.Constraint("DistanceX", 5, 1, 5, 2, Q("6 mm")),
    Sketcher.Constraint("DistanceY", 0, 1, 0, 2, Q("5 mm")),
    Sketcher.Constraint("DistanceX", 1, 2, 1, 1, Q("28.5 mm")),
    Sketcher.Constraint("DistanceY", 2, 2, 2, 1, Q("2.75 mm")),
    Sketcher.Constraint("DistanceY", 0, 2, -1, 1, Q("106.5 mm")),
])
groove4 = body.newObject("PartDesign::Groove", "Groove003")
groove4.Profile = sketch8
groove4.ReferenceAxis = (sketch8, ["Axis0"])
groove4.Angle = 360

sketch9 = body.newObject("Sketcher::SketchObject", "Sketch008")
sketch9.AttachmentSupport = (doc.getObject("YZ_Plane"), [""])
sketch9.MapMode = "FlatFace"
sketch9.AttachmentOffset = App.Placement(Vector(0, 0, -29), App.Rotation())
sketch9.addGeometry([
    Part.LineSegment(Vector(28.5, -154, 0), Vector(28.5, -149, 0)),
    Part.LineSegment(Vector(28.5, -149, 0), Vector(0, -149, 0)),
    Part.LineSegment(Vector(0, -149, 0), Vector(0, -151.8, 0)),
    Part.LineSegment(Vector(0, -151.8, 0), Vector(22.5, -151.8, 0)),
    Part.LineSegment(Vector(22.5, -151.8, 0), Vector(22.5, -154, 0)),
    Part.LineSegment(Vector(22.5, -154, 0), Vector(28.5, -154, 0)),
], False)
sketch9.addGeometry(Part.LineSegment(Vector(0, -149, 0), Vector(28.5, -149, 0)), True)
sketch9.addConstraint([
    Sketcher.Constraint("Coincident", 0, 2, 1, 1),
    Sketcher.Constraint("Coincident", 1, 2, 2, 1),
    Sketcher.Constraint("Coincident", 2, 2, 3, 1),
    Sketcher.Constraint("Coincident", 3, 2, 4, 1),
    Sketcher.Constraint("Coincident", 4, 2, 5, 1),
    Sketcher.Constraint("Coincident", 5, 2, 0, 1),
    Sketcher.Constraint("Vertical", 0),
    Sketcher.Constraint("Horizontal", 1),
    Sketcher.Constraint("Vertical", 2),
    Sketcher.Constraint("Horizontal", 3),
    Sketcher.Constraint("Vertical", 4),
    Sketcher.Constraint("Horizontal", 5),
    Sketcher.Constraint("Horizontal", 6),
    Sketcher.Constraint("Coincident", 6, 1, 1, 2),
    Sketcher.Constraint("PointOnObject", 1, 2, -2),
    Sketcher.Constraint("Vertical", 5, 2, 6, 2),
    Sketcher.Constraint("DistanceX", 5, 1, 5, 2, Q("6 mm")),
    Sketcher.Constraint("DistanceY", 0, 1, 0, 2, Q("5 mm")),
    Sketcher.Constraint("DistanceX", 1, 2, 1, 1, Q("28.5 mm")),
    Sketcher.Constraint("DistanceY", 0, 2, -1, 1, Q("149 mm")),
    Sketcher.Constraint("DistanceY", 2, 2, 2, 1, Q("2.75 mm")),
])
groove5 = body.newObject("PartDesign::Groove", "Groove004")
groove5.Profile = sketch9
groove5.ReferenceAxis = (sketch9, ["Axis0"])
groove5.Angle = 360

sketch10 = body.newObject("Sketcher::SketchObject", "Sketch009")
sketch10.AttachmentSupport = (doc.getObject("XY_Plane"), [""])
sketch10.MapMode = "FlatFace"
sketch10.AttachmentOffset = App.Placement(Vector(0, 0, -158), App.Rotation())
sketch10.addGeometry([
    Part.LineSegment(Vector(22, 28.5, 0), Vector(19, 28.5, 0)),
    Part.LineSegment(Vector(19, 28.5, 0), Vector(19, 10.6, 0)),
    Part.LineSegment(Vector(19, 10.6, 0), Vector(21.5, 12, 0)),
    Part.LineSegment(Vector(21.5, 12, 0), Vector(21.5, 28, 0)),
    Part.LineSegment(Vector(21.5, 28, 0), Vector(22, 28.5, 0)),
], False)
sketch10.addGeometry(Part.LineSegment(Vector(19, 10.6, 0), Vector(19, 28.5, 0)), True)
sketch10.addConstraint([
    Sketcher.Constraint("Coincident", 0, 2, 1, 1),
    Sketcher.Constraint("Coincident", 1, 2, 2, 1),
    Sketcher.Constraint("Coincident", 2, 2, 3, 1),
    Sketcher.Constraint("Coincident", 3, 2, 4, 1),
    Sketcher.Constraint("Coincident", 4, 2, 0, 1),
    Sketcher.Constraint("Horizontal", 0),
    Sketcher.Constraint("Vertical", 1),
    Sketcher.Constraint("Vertical", 3),
    Sketcher.Constraint("Vertical", 5),
    Sketcher.Constraint("Coincident", 5, 1, 1, 2),
    Sketcher.Constraint("Horizontal", 4, 2, 5, 2),
    Sketcher.Constraint("DistanceX", 0, 2, 0, 1, Q("3 mm")),
    Sketcher.Constraint("Angle", 2, Q("30 deg")),
    Sketcher.Constraint("Angle", 4, Q("45 deg")),
    Sketcher.Constraint("DistanceX", -1, 1, 0, 2, Q("19 mm")),
    Sketcher.Constraint("DistanceY", -1, 1, 2, 2, Q("12 mm")),
    Sketcher.Constraint("DistanceY", -1, 1, 0, 2, Q("28.5 mm")),
    Sketcher.Constraint("DistanceY", 3, 1, 3, 2, Q("15.9585 mm")),
])
groove6 = body.newObject("PartDesign::Groove", "Groove005")
groove6.Profile = sketch10
groove6.ReferenceAxis = (sketch10, ["Axis0"])
groove6.Angle = 360

sketch11 = body.newObject("Sketcher::SketchObject", "Sketch010")
sketch11.AttachmentSupport = (doc.getObject("XY_Plane"), [""])
sketch11.MapMode = "FlatFace"
sketch11.AttachmentOffset = App.Placement(Vector(0, 0, -158), App.Rotation())
sketch11.addGeometry([
    Part.LineSegment(Vector(-16, 28.5, 0), Vector(-19, 28.5, 0)),
    Part.LineSegment(Vector(-19, 28.5, 0), Vector(-19, 10.6, 0)),
    Part.LineSegment(Vector(-19, 10.6, 0), Vector(-16.5, 12, 0)),
    Part.LineSegment(Vector(-16.5, 12, 0), Vector(-16.5, 28, 0)),
    Part.LineSegment(Vector(-16.5, 28, 0), Vector(-16, 28.5, 0)),
], False)
sketch11.addGeometry(Part.LineSegment(Vector(-19, 10.6, 0), Vector(-19, 28.5, 0)), True)
sketch11.addConstraint([
    Sketcher.Constraint("Coincident", 0, 2, 1, 1),
    Sketcher.Constraint("Coincident", 1, 2, 2, 1),
    Sketcher.Constraint("Coincident", 2, 2, 3, 1),
    Sketcher.Constraint("Coincident", 3, 2, 4, 1),
    Sketcher.Constraint("Coincident", 4, 2, 0, 1),
    Sketcher.Constraint("Horizontal", 0),
    Sketcher.Constraint("Vertical", 1),
    Sketcher.Constraint("Vertical", 3),
    Sketcher.Constraint("Vertical", 5),
    Sketcher.Constraint("Coincident", 5, 1, 1, 2),
    Sketcher.Constraint("Horizontal", 4, 2, 5, 2),
    Sketcher.Constraint("DistanceX", 0, 2, 0, 1, Q("3 mm")),
    Sketcher.Constraint("Angle", 2, Q("30 deg")),
    Sketcher.Constraint("Angle", 4, Q("45 deg")),
    Sketcher.Constraint("DistanceX", 0, 2, -1, 1, Q("19 mm")),
    Sketcher.Constraint("DistanceY", -1, 1, 2, 2, Q("12 mm")),
    Sketcher.Constraint("DistanceY", -1, 1, 0, 2, Q("28.5 mm")),
    Sketcher.Constraint("DistanceY", 3, 1, 3, 2, Q("15.9585 mm")),
])
groove7 = body.newObject("PartDesign::Groove", "Groove006")
groove7.Profile = sketch11
groove7.ReferenceAxis = (sketch11, ["Axis0"])
groove7.Angle = 360

sketch12 = body.newObject("Sketcher::SketchObject", "Sketch011")
sketch12.AttachmentSupport = (doc.getObject("XY_Plane"), [""])
sketch12.MapMode = "FlatFace"
sketch12.AttachmentOffset = App.Placement(Vector(0, 0, -120), App.Rotation())
sketch12.addGeometry([
    Part.LineSegment(Vector(22, 28.5, 0), Vector(19, 28.5, 0)),
    Part.LineSegment(Vector(19, 28.5, 0), Vector(19, 10.6, 0)),
    Part.LineSegment(Vector(19, 10.6, 0), Vector(21.5, 12, 0)),
    Part.LineSegment(Vector(21.5, 12, 0), Vector(21.5, 28, 0)),
    Part.LineSegment(Vector(21.5, 28, 0), Vector(22, 28.5, 0)),
], False)
sketch12.addGeometry(Part.LineSegment(Vector(19, 10.6, 0), Vector(19, 28.5, 0)), True)
sketch12.addConstraint([
    Sketcher.Constraint("Coincident", 0, 2, 1, 1),
    Sketcher.Constraint("Coincident", 1, 2, 2, 1),
    Sketcher.Constraint("Coincident", 2, 2, 3, 1),
    Sketcher.Constraint("Coincident", 3, 2, 4, 1),
    Sketcher.Constraint("Coincident", 4, 2, 0, 1),
    Sketcher.Constraint("Horizontal", 0),
    Sketcher.Constraint("Vertical", 1),
    Sketcher.Constraint("Vertical", 3),
    Sketcher.Constraint("Vertical", 5),
    Sketcher.Constraint("Coincident", 5, 1, 1, 2),
    Sketcher.Constraint("Horizontal", 4, 2, 5, 2),
    Sketcher.Constraint("DistanceX", 0, 2, 0, 1, Q("3 mm")),
    Sketcher.Constraint("Angle", 2, Q("30 deg")),
    Sketcher.Constraint("Angle", 4, Q("45 deg")),
    Sketcher.Constraint("DistanceX", -1, 1, 0, 2, Q("19 mm")),
    Sketcher.Constraint("DistanceY", -1, 1, 2, 2, Q("12 mm")),
    Sketcher.Constraint("DistanceY", -1, 1, 0, 2, Q("28.5 mm")),
    Sketcher.Constraint("DistanceY", 3, 1, 3, 2, Q("15.9585 mm")),
])
groove8 = body.newObject("PartDesign::Groove", "Groove007")
groove8.Profile = sketch12
groove8.ReferenceAxis = (sketch12, ["Axis0"])
groove8.Angle = 360

sketch13 = body.newObject("Sketcher::SketchObject", "Sketch012")
sketch13.AttachmentSupport = (doc.getObject("XY_Plane"), [""])
sketch13.MapMode = "FlatFace"
sketch13.AttachmentOffset = App.Placement(Vector(0, 0, -120), App.Rotation())
sketch13.addGeometry([
    Part.LineSegment(Vector(-16, 28.5, 0), Vector(-19, 28.5, 0)),
    Part.LineSegment(Vector(-19, 28.5, 0), Vector(-19, 10.6, 0)),
    Part.LineSegment(Vector(-19, 10.6, 0), Vector(-16.5, 12, 0)),
    Part.LineSegment(Vector(-16.5, 12, 0), Vector(-16.5, 28, 0)),
    Part.LineSegment(Vector(-16.5, 28, 0), Vector(-16, 28.5, 0)),
], False)
sketch13.addGeometry(Part.LineSegment(Vector(-19, 10.6, 0), Vector(-19, 28.5, 0)), True)
sketch13.addConstraint([
    Sketcher.Constraint("Coincident", 0, 2, 1, 1),
    Sketcher.Constraint("Coincident", 1, 2, 2, 1),
    Sketcher.Constraint("Coincident", 2, 2, 3, 1),
    Sketcher.Constraint("Coincident", 3, 2, 4, 1),
    Sketcher.Constraint("Coincident", 4, 2, 0, 1),
    Sketcher.Constraint("Horizontal", 0),
    Sketcher.Constraint("Vertical", 1),
    Sketcher.Constraint("Vertical", 3),
    Sketcher.Constraint("Vertical", 5),
    Sketcher.Constraint("Coincident", 5, 1, 1, 2),
    Sketcher.Constraint("Horizontal", 4, 2, 5, 2),
    Sketcher.Constraint("DistanceX", 0, 2, 0, 1, Q("3 mm")),
    Sketcher.Constraint("Angle", 2, Q("30 deg")),
    Sketcher.Constraint("Angle", 4, Q("45 deg")),
    Sketcher.Constraint("DistanceX", 0, 2, -1, 1, Q("19 mm")),
    Sketcher.Constraint("DistanceY", -1, 1, 2, 2, Q("12 mm")),
    Sketcher.Constraint("DistanceY", -1, 1, 0, 2, Q("28.5 mm")),
    Sketcher.Constraint("DistanceY", 3, 1, 3, 2, Q("15.9585 mm")),
])
groove9 = body.newObject("PartDesign::Groove", "Groove008")
groove9.Profile = sketch13
groove9.ReferenceAxis = (sketch13, ["Axis0"])
groove9.Angle = 360

doc.recompute()
